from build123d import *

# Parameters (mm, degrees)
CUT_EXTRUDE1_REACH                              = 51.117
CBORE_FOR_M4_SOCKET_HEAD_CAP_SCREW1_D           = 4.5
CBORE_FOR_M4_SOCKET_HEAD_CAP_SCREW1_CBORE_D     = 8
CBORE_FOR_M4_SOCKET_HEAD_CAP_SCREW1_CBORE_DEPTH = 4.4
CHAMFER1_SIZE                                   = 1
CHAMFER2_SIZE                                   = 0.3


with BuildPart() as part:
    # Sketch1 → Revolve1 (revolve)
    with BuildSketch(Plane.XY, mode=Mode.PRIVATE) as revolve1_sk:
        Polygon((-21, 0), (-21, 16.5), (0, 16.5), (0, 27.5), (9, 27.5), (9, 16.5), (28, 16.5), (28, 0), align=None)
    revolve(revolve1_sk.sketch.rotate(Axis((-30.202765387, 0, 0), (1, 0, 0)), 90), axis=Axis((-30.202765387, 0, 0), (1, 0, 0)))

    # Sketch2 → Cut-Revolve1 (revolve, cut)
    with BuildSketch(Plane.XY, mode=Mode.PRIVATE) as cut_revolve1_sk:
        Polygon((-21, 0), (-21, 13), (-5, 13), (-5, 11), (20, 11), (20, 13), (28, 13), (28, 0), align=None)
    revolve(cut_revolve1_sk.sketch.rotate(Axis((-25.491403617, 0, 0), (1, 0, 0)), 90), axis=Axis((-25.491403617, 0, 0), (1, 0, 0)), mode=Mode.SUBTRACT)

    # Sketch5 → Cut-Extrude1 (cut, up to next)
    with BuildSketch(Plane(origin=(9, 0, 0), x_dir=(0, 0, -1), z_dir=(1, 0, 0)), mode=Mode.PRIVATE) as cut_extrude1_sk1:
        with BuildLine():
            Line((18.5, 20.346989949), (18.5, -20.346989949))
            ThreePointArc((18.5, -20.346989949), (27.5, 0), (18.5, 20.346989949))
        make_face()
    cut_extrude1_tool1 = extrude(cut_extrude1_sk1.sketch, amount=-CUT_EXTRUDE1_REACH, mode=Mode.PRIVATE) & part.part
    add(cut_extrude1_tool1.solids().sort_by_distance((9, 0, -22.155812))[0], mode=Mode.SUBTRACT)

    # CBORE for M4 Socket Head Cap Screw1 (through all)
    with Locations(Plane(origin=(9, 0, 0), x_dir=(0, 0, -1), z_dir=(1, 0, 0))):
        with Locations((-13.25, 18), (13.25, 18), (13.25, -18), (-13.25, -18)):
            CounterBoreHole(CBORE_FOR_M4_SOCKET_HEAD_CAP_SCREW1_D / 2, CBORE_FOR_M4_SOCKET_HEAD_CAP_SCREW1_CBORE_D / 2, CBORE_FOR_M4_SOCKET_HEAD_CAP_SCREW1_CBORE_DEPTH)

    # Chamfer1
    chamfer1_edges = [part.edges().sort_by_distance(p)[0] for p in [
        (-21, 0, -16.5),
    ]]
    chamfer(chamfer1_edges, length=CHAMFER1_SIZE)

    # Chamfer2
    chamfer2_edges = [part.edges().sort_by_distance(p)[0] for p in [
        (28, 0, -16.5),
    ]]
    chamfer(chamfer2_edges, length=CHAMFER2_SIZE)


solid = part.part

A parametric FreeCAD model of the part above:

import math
import FreeCAD as App
import Part
import Sketcher
Q = App.Units.Quantity


def edges_at(feature, points):
    """Names of the edges that pass closest to the given points."""
    edges = feature.Shape.Edges
    near = lambda p: min(range(len(edges)), key=lambda i: edges[i].distToShape(Part.Vertex(*p))[0])
    return sorted({f"Edge{near(p) + 1}" for p in points})


def add_polygon(sketch, points):
    """Adds a closed chain of lines whose ends are joined by coincident constraints."""
    first, n = sketch.GeometryCount, len(points)
    for a, b in zip(points, points[1:] + points[:1]):
        sketch.addGeometry(Part.LineSegment(App.Vector(*a, 0), App.Vector(*b, 0)), False)
    for i in range(n):
        sketch.addConstraint(Sketcher.Constraint("Coincident", first + i, 2, first + (i + 1) % n, 1))

doc = App.newDocument("Part")
body = doc.addObject("PartDesign::Body", "Body")

sketch1 = body.newObject("Sketcher::SketchObject", "Sketch")
sketch1.AttachmentSupport = (doc.getObject("XY_Plane"), [""])
sketch1.MapMode = "FlatFace"
add_polygon(sketch1, [(-21, 16.5), (-21, 0), (28, 0), (28, 16.5), (9, 16.5), (9, 27.5), (0, 27.5), (0, 16.5)])
sketch1.addConstraint([
    Sketcher.Constraint("Vertical", 0),
    Sketcher.Constraint("Horizontal", 1),
    Sketcher.Constraint("Vertical", 2),
    Sketcher.Constraint("Horizontal", 3),
    Sketcher.Constraint("Vertical", 4),
    Sketcher.Constraint("Horizontal", 5),
    Sketcher.Constraint("Vertical", 6),
    Sketcher.Constraint("Horizontal", 7),
    Sketcher.Constraint("PointOnObject", 0, 2, -1),
    Sketcher.Constraint("PointOnObject", 5, 2, -2),
    Sketcher.Constraint("Horizontal", 3, 2, 6, 2),
    Sketcher.Constraint("DistanceX", 1, 1, 1, 2, Q("49 mm")),
    Sketcher.Constraint("DistanceX", 3, 2, 3, 1, Q("19 mm")),
    Sketcher.Constraint("DistanceX", 5, 2, 5, 1, Q("9 mm")),
    Sketcher.Constraint("DistanceY", 4, 1, 4, 2, Q("11 mm")),
    Sketcher.Constraint("DistanceY", 0, 2, 0, 1, Q("16.5 mm")),
])
revolution = body.newObject("PartDesign::Revolution", "Revolution")
revolution.Profile = sketch1
revolution.ReferenceAxis = (sketch1, ["H_Axis"])
revolution.Angle = 360

sketch2 = body.newObject("Sketcher::SketchObject", "Sketch001")
sketch2.AttachmentSupport = (doc.getObject("XY_Plane"), [""])
sketch2.MapMode = "FlatFace"
add_polygon(sketch2, [(-21, 13), (-21, 0), (28, 0), (28, 13), (20, 13), (20, 11), (-5, 11), (-5, 13)])
sketch2.addConstraint([
    Sketcher.Constraint("Vertical", 0),
    Sketcher.Constraint("Horizontal", 1),
    Sketcher.Constraint("Vertical", 2),
    Sketcher.Constraint("Horizontal", 3),
    Sketcher.Constraint("Vertical", 4),
    Sketcher.Constraint("Horizontal", 5),
    Sketcher.Constraint("Vertical", 6),
    Sketcher.Constraint("Horizontal", 7),
    Sketcher.Constraint("PointOnObject", 0, 2, -1),
    Sketcher.Constraint("Horizontal", 3, 2, 6, 2),
    Sketcher.Constraint("DistanceX", 1, 1, 1, 2, Q("49 mm")),
    Sketcher.Constraint("DistanceX", 3, 2, 3, 1, Q("8 mm")),
    Sketcher.Constraint("DistanceX", 5, 2, 5, 1, Q("25 mm")),
    Sketcher.Constraint("DistanceY", 0, 2, 0, 1, Q("13 mm")),
    Sketcher.Constraint("DistanceY", 4, 2, 4, 1, Q("2 mm")),
    Sketcher.Constraint("DistanceX", 0, 2, -1, 1, Q("21 mm")),
])
groove = body.newObject("PartDesign::Groove", "Groove")
groove.Profile = sketch2
groove.ReferenceAxis = (sketch2, ["H_Axis"])
groove.Angle = 360

sketch3 = body.newObject("Sketcher::SketchObject", "Sketch002")
sketch3.AttachmentSupport = (doc.getObject("YZ_Plane"), [""])
sketch3.MapMode = "FlatFace"
sketch3.AttachmentOffset = App.Placement(App.Vector(0, 0, 9), App.Rotation())
sketch3.addGeometry([
    Part.LineSegment(App.Vector(20.34699, -18.5, 0), App.Vector(-20.34699, -18.5, 0)),
    Part.ArcOfCircle(Part.Circle(App.Vector(0, 0, 0), App.Vector(0, 0, 1), 27.5), math.radians(-137.722092), math.radians(-42.277908)),
], False)
sketch3.addConstraint([
    Sketcher.Constraint("Coincident", 0, 1, 1, 2),
    Sketcher.Constraint("Coincident", 1, 1, 0, 2),
    Sketcher.Constraint("Horizontal", 0),
    Sketcher.Constraint("Coincident", 1, 3, -1, 1),
    Sketcher.Constraint("Radius", 1, Q("27.5 mm")),
    Sketcher.Constraint("DistanceY", 0, 1, -1, 1, Q("18.5 mm")),
])
pocket1 = body.newObject("PartDesign::Pocket", "Pocket")
pocket1.Profile = sketch3
pocket1.Type = "UpToFirst"

sketch4 = body.newObject("Sketcher::SketchObject", "Sketch003")
sketch4.AttachmentSupport = (doc.getObject("YZ_Plane"), [""])
sketch4.MapMode = "FlatFace"
sketch4.AttachmentOffset = App.Placement(App.Vector(0, 0, 9), App.Rotation())
sketch4.addGeometry([
    Part.Circle(App.Vector(18, 13.25, 0), App.Vector(0, 0, 1), 2.25),
    Part.Circle(App.Vector(18, -13.25, 0), App.Vector(0, 0, 1), 2.25),
    Part.Circle(App.Vector(-18, -13.25, 0), App.Vector(0, 0, 1), 2.25),
    Part.Circle(App.Vector(-18, 13.25, 0), App.Vector(0, 0, 1), 2.25),
], False)
sketch4.addConstraint([
    Sketcher.Constraint("Equal", 0, 1),
    Sketcher.Constraint("Equal", 1, 2),
    Sketcher.Constraint("Equal", 2, 3),
    Sketcher.Constraint("Symmetric", 0, 3, 2, 3, -1, 1),
    Sketcher.Constraint("Symmetric", 1, 3, 3, 3, -1, 1),
    Sketcher.Constraint("Symmetric", 1, 3, 2, 3, -2),
    Sketcher.Constraint("Diameter", 0, Q("4.5 mm")),
    Sketcher.Constraint("DistanceX", -1, 1, 0, 3, Q("18 mm")),
    Sketcher.Constraint("DistanceY", 1, 3, 0, 3, Q("26.5 mm")),
])
doc.recompute()
hole = body.newObject("PartDesign::Hole", "Hole")
hole.Profile = sketch4
hole.ThreadType = "None"
hole.Diameter = 4.5
hole.DepthType = "ThroughAll"
hole.HoleCutType = "Counterbore"
hole.HoleCutDiameter = 8
hole.HoleCutDepth = 4.4
doc.recompute()

chamfer = body.newObject("PartDesign::Chamfer", "Chamfer")
chamfer.Base = (hole, edges_at(hole, [(-21, 0, -16.5)]))
chamfer.Size = 1
doc.recompute()

chamfer2 = body.newObject("PartDesign::Chamfer", "Chamfer001")
chamfer2.Base = (chamfer, edges_at(chamfer, [(28, 0, -16.5)]))
chamfer2.Size = 0.3

doc.recompute()
